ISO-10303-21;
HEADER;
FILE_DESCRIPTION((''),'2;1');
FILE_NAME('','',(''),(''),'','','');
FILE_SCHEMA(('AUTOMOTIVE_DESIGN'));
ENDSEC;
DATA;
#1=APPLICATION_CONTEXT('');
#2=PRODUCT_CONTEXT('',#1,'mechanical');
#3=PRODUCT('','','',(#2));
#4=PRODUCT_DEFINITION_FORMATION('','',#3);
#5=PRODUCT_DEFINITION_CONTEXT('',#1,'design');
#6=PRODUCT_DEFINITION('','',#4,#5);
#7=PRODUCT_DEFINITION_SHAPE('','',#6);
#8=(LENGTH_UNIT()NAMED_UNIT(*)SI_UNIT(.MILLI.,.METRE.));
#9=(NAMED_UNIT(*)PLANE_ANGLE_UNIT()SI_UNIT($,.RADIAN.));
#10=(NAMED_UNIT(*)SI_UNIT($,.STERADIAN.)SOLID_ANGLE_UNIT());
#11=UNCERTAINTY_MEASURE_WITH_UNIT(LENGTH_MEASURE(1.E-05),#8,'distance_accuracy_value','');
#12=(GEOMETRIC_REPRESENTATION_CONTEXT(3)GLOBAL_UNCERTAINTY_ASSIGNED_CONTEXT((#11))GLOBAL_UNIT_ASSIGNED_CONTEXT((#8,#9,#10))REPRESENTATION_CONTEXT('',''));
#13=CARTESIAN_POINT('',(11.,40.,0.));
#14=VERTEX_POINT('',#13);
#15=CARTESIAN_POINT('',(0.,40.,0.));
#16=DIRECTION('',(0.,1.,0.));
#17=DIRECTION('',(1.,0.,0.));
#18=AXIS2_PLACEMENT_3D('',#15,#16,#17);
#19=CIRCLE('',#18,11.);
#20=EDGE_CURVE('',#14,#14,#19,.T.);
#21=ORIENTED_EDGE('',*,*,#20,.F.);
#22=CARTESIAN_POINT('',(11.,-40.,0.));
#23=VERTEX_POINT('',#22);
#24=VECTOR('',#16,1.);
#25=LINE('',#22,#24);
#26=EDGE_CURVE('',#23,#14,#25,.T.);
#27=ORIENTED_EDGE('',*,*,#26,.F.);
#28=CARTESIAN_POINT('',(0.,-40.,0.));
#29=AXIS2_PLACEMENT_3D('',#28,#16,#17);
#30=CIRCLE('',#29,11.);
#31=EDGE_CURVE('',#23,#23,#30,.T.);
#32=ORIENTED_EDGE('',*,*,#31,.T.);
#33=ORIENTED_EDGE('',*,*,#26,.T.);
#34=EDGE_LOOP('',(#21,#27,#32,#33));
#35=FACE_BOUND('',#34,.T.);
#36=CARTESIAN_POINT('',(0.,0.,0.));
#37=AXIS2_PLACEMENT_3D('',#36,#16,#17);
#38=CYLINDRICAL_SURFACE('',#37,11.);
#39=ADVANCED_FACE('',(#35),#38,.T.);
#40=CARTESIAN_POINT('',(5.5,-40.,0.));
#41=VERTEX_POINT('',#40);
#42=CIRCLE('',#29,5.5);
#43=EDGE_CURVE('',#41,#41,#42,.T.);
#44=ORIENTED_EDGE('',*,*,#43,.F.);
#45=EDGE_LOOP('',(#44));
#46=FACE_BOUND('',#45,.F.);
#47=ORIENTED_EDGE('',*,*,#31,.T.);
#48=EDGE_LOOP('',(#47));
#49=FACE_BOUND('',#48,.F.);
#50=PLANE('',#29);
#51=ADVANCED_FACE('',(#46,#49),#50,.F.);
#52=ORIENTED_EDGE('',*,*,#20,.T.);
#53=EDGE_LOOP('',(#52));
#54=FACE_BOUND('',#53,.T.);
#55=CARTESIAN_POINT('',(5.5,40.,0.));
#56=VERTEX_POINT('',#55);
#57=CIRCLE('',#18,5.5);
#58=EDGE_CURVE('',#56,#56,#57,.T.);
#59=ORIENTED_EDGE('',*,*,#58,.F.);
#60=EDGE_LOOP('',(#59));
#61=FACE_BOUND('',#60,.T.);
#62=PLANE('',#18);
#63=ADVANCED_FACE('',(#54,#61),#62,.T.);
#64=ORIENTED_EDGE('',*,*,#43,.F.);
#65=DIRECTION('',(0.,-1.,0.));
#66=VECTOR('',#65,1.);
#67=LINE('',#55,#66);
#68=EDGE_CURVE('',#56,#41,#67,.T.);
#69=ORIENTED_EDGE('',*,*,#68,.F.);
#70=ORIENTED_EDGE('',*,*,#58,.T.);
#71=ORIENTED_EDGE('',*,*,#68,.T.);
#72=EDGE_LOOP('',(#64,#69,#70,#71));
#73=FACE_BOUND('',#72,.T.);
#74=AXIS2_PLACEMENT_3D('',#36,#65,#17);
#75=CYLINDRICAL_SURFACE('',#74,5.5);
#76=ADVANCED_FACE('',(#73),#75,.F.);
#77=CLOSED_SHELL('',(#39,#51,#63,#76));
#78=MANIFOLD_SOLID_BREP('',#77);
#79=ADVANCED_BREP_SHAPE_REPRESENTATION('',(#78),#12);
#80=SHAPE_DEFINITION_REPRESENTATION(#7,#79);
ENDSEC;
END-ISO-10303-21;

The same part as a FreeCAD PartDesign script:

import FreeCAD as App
import Part
import Sketcher
from FreeCAD import Vector
Q = App.Units.Quantity

doc = App.newDocument("Part")
body = doc.addObject("PartDesign::Body", "Body")

# Sketch on XZ plane
sketch1 = body.newObject("Sketcher::SketchObject", "Sketch")
sketch1.AttachmentSupport = (doc.getObject("XZ_Plane"), [""])
sketch1.MapMode = "FlatFace"
sketch1.addGeometry(Part.Circle(Vector(0, 0, 0), Vector(0, 0, 1), 11), False)
sketch1.addGeometry(Part.Circle(Vector(0, 0, 0), Vector(0, 0, 1), 5.5), False)
sketch1.addConstraint(Sketcher.Constraint("Coincident", 0, 3, -1, 1))
sketch1.addConstraint(Sketcher.Constraint("Coincident", 1, 3, -1, 1))
sketch1.addConstraint(Sketcher.Constraint("Diameter", 0, Q("22 mm")))
sketch1.addConstraint(Sketcher.Constraint("Diameter", 1, Q("11 mm")))
pad1 = body.newObject("PartDesign::Pad", "Pad")
pad1.Profile = sketch1
pad1.Length = 80
pad1.Midplane = True

doc.recompute()
